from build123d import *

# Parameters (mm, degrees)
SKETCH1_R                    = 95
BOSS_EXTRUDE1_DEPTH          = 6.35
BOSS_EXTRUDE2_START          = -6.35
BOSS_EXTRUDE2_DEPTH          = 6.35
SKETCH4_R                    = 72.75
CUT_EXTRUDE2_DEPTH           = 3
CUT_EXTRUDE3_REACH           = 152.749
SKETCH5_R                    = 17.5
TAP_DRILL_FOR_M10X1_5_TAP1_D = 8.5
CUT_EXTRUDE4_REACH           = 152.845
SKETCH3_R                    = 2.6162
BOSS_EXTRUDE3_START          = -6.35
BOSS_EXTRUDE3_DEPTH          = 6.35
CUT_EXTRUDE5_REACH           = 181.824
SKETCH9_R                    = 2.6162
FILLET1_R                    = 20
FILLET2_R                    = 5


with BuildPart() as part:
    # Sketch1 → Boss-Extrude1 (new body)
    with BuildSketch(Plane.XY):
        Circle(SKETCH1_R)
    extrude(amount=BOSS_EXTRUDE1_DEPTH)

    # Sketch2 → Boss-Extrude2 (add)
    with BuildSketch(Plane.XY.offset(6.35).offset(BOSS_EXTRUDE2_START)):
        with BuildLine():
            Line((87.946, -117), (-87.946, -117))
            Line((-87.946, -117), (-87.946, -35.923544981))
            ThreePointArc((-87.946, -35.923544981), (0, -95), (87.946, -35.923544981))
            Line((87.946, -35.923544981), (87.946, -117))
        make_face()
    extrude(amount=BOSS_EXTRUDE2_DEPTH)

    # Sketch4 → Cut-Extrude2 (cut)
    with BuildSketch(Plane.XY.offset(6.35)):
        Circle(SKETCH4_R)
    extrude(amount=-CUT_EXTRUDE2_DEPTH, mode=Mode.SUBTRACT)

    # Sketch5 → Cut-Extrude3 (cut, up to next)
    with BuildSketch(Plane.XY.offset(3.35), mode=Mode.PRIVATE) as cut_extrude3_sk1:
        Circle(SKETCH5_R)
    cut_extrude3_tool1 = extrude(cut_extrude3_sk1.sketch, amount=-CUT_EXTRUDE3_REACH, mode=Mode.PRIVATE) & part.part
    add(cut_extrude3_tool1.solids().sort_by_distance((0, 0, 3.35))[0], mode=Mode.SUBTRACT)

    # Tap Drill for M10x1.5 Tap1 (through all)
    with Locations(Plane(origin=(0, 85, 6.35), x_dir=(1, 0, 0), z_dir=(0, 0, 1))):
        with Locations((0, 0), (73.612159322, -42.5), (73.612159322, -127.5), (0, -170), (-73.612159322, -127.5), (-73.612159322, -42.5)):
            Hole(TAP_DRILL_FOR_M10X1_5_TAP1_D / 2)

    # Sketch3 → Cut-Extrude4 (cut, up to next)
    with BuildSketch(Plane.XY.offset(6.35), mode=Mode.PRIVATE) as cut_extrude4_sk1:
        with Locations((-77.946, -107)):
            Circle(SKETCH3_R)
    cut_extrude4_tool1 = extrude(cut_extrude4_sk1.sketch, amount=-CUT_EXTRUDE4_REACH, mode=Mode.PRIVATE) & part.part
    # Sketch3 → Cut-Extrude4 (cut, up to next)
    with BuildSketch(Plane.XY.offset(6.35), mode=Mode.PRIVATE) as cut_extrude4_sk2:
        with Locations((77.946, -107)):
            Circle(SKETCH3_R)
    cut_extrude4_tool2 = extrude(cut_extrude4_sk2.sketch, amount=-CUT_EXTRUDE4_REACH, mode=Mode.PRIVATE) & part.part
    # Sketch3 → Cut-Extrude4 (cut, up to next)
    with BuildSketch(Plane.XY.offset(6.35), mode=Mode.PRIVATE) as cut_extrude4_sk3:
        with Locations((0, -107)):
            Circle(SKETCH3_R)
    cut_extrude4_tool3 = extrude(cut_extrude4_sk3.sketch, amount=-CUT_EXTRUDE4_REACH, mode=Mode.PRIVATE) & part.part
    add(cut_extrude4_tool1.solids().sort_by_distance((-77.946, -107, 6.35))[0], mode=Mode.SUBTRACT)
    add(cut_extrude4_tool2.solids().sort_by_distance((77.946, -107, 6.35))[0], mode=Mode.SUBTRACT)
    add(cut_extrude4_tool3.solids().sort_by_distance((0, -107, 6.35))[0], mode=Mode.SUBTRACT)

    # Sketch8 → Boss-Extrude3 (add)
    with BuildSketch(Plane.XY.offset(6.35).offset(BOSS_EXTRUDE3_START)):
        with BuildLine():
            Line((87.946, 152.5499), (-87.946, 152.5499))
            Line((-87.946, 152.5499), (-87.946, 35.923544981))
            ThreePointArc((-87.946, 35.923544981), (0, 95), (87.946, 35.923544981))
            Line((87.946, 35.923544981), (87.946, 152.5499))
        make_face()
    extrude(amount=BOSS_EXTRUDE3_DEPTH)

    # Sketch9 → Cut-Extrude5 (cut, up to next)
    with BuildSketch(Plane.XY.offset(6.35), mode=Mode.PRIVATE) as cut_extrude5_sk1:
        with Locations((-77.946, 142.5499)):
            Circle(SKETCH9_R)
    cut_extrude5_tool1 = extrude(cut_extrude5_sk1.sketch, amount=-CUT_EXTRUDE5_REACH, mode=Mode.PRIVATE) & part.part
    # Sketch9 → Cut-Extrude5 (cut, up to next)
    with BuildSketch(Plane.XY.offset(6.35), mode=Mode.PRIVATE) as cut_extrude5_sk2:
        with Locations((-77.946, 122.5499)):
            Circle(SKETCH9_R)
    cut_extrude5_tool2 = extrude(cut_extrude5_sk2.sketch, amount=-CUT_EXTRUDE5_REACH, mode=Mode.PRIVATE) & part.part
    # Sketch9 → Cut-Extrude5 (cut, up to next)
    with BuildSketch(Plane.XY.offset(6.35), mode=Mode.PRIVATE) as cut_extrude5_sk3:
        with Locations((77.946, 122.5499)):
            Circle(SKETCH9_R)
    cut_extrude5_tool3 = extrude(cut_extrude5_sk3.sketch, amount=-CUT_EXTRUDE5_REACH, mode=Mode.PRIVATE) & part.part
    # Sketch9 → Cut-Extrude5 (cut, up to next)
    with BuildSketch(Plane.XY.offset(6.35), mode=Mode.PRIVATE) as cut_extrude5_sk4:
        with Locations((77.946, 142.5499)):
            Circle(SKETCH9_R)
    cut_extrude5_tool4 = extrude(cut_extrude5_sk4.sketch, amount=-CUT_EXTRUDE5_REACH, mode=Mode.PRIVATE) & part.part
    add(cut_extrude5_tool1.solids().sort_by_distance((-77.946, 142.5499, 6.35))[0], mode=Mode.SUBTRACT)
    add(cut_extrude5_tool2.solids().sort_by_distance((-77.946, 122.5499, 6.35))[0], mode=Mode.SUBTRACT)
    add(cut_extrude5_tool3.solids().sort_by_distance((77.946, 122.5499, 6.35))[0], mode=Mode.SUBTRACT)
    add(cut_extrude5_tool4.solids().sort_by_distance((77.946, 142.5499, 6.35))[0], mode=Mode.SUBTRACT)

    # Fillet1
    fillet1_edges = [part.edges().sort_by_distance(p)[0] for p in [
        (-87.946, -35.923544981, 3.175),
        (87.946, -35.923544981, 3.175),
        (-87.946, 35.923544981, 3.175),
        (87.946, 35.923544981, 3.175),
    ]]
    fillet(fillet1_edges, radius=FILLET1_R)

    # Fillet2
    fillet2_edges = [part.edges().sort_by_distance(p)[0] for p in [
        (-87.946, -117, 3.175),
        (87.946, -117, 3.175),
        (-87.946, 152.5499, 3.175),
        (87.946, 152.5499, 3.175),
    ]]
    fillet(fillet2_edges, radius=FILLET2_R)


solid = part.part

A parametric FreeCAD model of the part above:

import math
import FreeCAD as App
import Part
import Sketcher
from FreeCAD import Vector


def edges_at(feature, points):
    """Names of the edges that pass closest to the given points."""
    edges = feature.Shape.Edges
    near = lambda p: min(range(len(edges)), key=lambda i: edges[i].distToShape(Part.Vertex(*p))[0])
    return sorted({f"Edge{near(p) + 1}" for p in points})

doc = App.newDocument("Part")
body = doc.addObject("PartDesign::Body", "Body")

# Sketch on XY plane
sketch1 = body.newObject("Sketcher::SketchObject", "Sketch")
sketch1.AttachmentSupport = (doc.getObject("XY_Plane"), [""])
sketch1.MapMode = "FlatFace"
sketch1.addGeometry(Part.Circle(Vector(0, 0, 0), Vector(0, 0, 1), 95), False)
sketch1.addConstraint(Sketcher.Constraint("Coincident", 0, 3, -1, 1))
sketch1.addConstraint(Sketcher.Constraint("Diameter", 0, 190.0))
pad1 = body.newObject("PartDesign::Pad", "Pad")
pad1.Profile = sketch1
pad1.Length = 6.35

# Sketch on XY plane
sketch2 = body.newObject("Sketcher::SketchObject", "Sketch001")
sketch2.AttachmentSupport = (doc.getObject("XY_Plane"), [""])
sketch2.MapMode = "FlatFace"
sketch2.addGeometry(Part.LineSegment(Vector(-87.946, -117, 0), Vector(87.946, -117, 0)), False)
sketch2.addGeometry(Part.LineSegment(Vector(87.946, -117, 0), Vector(87.946, -35.923545, 0)), False)
sketch2.addGeometry(Part.ArcOfCircle(Part.Circle(Vector(0, 0, 0), Vector(0, 0, 1), 95), math.radians(-157.781323), math.radians(-22.218677)), False)
sketch2.addGeometry(Part.LineSegment(Vector(-87.946, -35.923545, 0), Vector(-87.946, -117, 0)), False)
sketch2.addConstraint(Sketcher.Constraint("Coincident", 0, 2, 1, 1))
sketch2.addConstraint(Sketcher.Constraint("Coincident", 1, 2, 2, 2))
sketch2.addConstraint(Sketcher.Constraint("Coincident", 2, 1, 3, 1))
sketch2.addConstraint(Sketcher.Constraint("Coincident", 3, 2, 0, 1))
sketch2.addConstraint(Sketcher.Constraint("Horizontal", 0))
sketch2.addConstraint(Sketcher.Constraint("Vertical", 1))
sketch2.addConstraint(Sketcher.Constraint("Vertical", 3))
sketch2.addConstraint(Sketcher.Constraint("Coincident", 2, 3, -1, 1))
sketch2.addConstraint(Sketcher.Constraint("Horizontal", 1, 2, 2, 1))
sketch2.addConstraint(Sketcher.Constraint("Radius", 2, 95.0))
sketch2.addConstraint(Sketcher.Constraint("DistanceY", 0, 2, -1, 1, 117.0))
sketch2.addConstraint(Sketcher.Constraint("DistanceX", 0, 1, 0, 2, 175.892))
pad2 = body.newObject("PartDesign::Pad", "Pad001")
pad2.Profile = sketch2
pad2.Length = 6.35

# Sketch on XY plane
sketch3 = body.newObject("Sketcher::SketchObject", "Sketch002")
sketch3.AttachmentSupport = (doc.getObject("XY_Plane"), [""])
sketch3.MapMode = "FlatFace"
sketch3.AttachmentOffset = App.Placement(Vector(0, 0, 6.35), App.Rotation())
sketch3.addGeometry(Part.Circle(Vector(0, 0, 0), Vector(0, 0, 1), 72.75), False)
sketch3.addConstraint(Sketcher.Constraint("Coincident", 0, 3, -1, 1))
sketch3.addConstraint(Sketcher.Constraint("Diameter", 0, 145.5))
pocket1 = body.newObject("PartDesign::Pocket", "Pocket")
pocket1.Profile = sketch3
pocket1.Length = 3

# Sketch on XY plane
sketch4 = body.newObject("Sketcher::SketchObject", "Sketch003")
sketch4.AttachmentSupport = (doc.getObject("XY_Plane"), [""])
sketch4.MapMode = "FlatFace"
sketch4.AttachmentOffset = App.Placement(Vector(0, 0, 3.35), App.Rotation())
sketch4.addGeometry(Part.Circle(Vector(0, 0, 0), Vector(0, 0, 1), 17.5), False)
sketch4.addConstraint(Sketcher.Constraint("Coincident", 0, 3, -1, 1))
sketch4.addConstraint(Sketcher.Constraint("Diameter", 0, 35.0))
pocket2 = body.newObject("PartDesign::Pocket", "Pocket001")
pocket2.Profile = sketch4
pocket2.Type = "UpToFirst"

# Sketch on XY plane
sketch5 = body.newObject("Sketcher::SketchObject", "Sketch004")
sketch5.AttachmentSupport = (doc.getObject("XY_Plane"), [""])
sketch5.MapMode = "FlatFace"
sketch5.AttachmentOffset = App.Placement(Vector(0, 0, 6.35), App.Rotation())
sketch5.addGeometry(Part.Circle(Vector(0, 85, 0), Vector(0, 0, 1), 4.25), False)
sketch5.addGeometry(Part.Circle(Vector(73.612159, 42.5, 0), Vector(0, 0, 1), 4.25), False)
sketch5.addGeometry(Part.Circle(Vector(73.612159, -42.5, 0), Vector(0, 0, 1), 4.25), False)
sketch5.addGeometry(Part.Circle(Vector(0, -85, 0), Vector(0, 0, 1), 4.25), False)
sketch5.addGeometry(Part.Circle(Vector(-73.612159, -42.5, 0), Vector(0, 0, 1), 4.25), False)
sketch5.addGeometry(Part.Circle(Vector(-73.612159, 42.5, 0), Vector(0, 0, 1), 4.25), False)
sketch5.addConstraint(Sketcher.Constraint("Equal", 0, 1))
sketch5.addConstraint(Sketcher.Constraint("Equal", 1, 2))
sketch5.addConstraint(Sketcher.Constraint("Equal", 2, 3))
sketch5.addConstraint(Sketcher.Constraint("Equal", 3, 4))
sketch5.addConstraint(Sketcher.Constraint("Equal", 4, 5))
sketch5.addConstraint(Sketcher.Constraint("Symmetric", 0, 3, 3, 3, -1, 1))
sketch5.addConstraint(Sketcher.Constraint("Symmetric", 1, 3, 4, 3, -1, 1))
sketch5.addConstraint(Sketcher.Constraint("Symmetric", 2, 3, 5, 3, -1, 1))
sketch5.addConstraint(Sketcher.Constraint("Symmetric", 2, 3, 4, 3, -2))
sketch5.addConstraint(Sketcher.Constraint("PointOnObject", 0, 3, -2))
sketch5.addConstraint(Sketcher.Constraint("Diameter", 0, 8.5))
sketch5.addConstraint(Sketcher.Constraint("DistanceY", -1, 1, 0, 3, 85.0))
sketch5.addConstraint(Sketcher.Constraint("DistanceY", 2, 3, 1, 3, 85.0))
sketch5.addConstraint(Sketcher.Constraint("DistanceX", -1, 1, 1, 3, 73.612159))
doc.recompute()
hole = body.newObject("PartDesign::Hole", "Hole")
hole.Profile = sketch5
hole.ThreadType = "None"
hole.Diameter = 8.5
hole.DepthType = "ThroughAll"

# Sketch on XY plane
sketch6 = body.newObject("Sketcher::SketchObject", "Sketch005")
sketch6.AttachmentSupport = (doc.getObject("XY_Plane"), [""])
sketch6.MapMode = "FlatFace"
sketch6.AttachmentOffset = App.Placement(Vector(0, 0, 6.35), App.Rotation())
sketch6.addGeometry(Part.Circle(Vector(-77.946, -107, 0), Vector(0, 0, 1), 2.6162), False)
sketch6.addConstraint(Sketcher.Constraint("DistanceY", 0, 3, -1, 1, 107.0))
sketch6.addConstraint(Sketcher.Constraint("Diameter", 0, 5.2324))
sketch6.addConstraint(Sketcher.Constraint("DistanceX", 0, 3, -1, 1, 77.946))
pocket3 = body.newObject("PartDesign::Pocket", "Pocket002")
pocket3.Profile = sketch6
pocket3.Type = "UpToFirst"

# Sketch on XY plane
sketch7 = body.newObject("Sketcher::SketchObject", "Sketch006")
sketch7.AttachmentSupport = (doc.getObject("XY_Plane"), [""])
sketch7.MapMode = "FlatFace"
sketch7.AttachmentOffset = App.Placement(Vector(0, 0, 6.35), App.Rotation())
sketch7.addGeometry(Part.Circle(Vector(77.946, -107, 0), Vector(0, 0, 1), 2.6162), False)
sketch7.addConstraint(Sketcher.Constraint("DistanceY", 0, 3, -1, 1, 107.0))
sketch7.addConstraint(Sketcher.Constraint("Diameter", 0, 5.2324))
sketch7.addConstraint(Sketcher.Constraint("DistanceX", -1, 1, 0, 3, 77.946))
pocket4 = body.newObject("PartDesign::Pocket", "Pocket003")
pocket4.Profile = sketch7
pocket4.Type = "UpToFirst"

# Sketch on XY plane
sketch8 = body.newObject("Sketcher::SketchObject", "Sketch007")
sketch8.AttachmentSupport = (doc.getObject("XY_Plane"), [""])
sketch8.MapMode = "FlatFace"
sketch8.AttachmentOffset = App.Placement(Vector(0, 0, 6.35), App.Rotation())
sketch8.addGeometry(Part.Circle(Vector(0, -107, 0), Vector(0, 0, 1), 2.6162), False)
sketch8.addConstraint(Sketcher.Constraint("PointOnObject", 0, 3, -2))
sketch8.addConstraint(Sketcher.Constraint("DistanceY", 0, 3, -1, 1, 107.0))
sketch8.addConstraint(Sketcher.Constraint("Diameter", 0, 5.2324))
pocket5 = body.newObject("PartDesign::Pocket", "Pocket004")
pocket5.Profile = sketch8
pocket5.Type = "UpToFirst"

# Sketch on XY plane
sketch9 = body.newObject("Sketcher::SketchObject", "Sketch008")
sketch9.AttachmentSupport = (doc.getObject("XY_Plane"), [""])
sketch9.MapMode = "FlatFace"
sketch9.addGeometry(Part.LineSegment(Vector(87.946, 152.5499, 0), Vector(-87.946, 152.5499, 0)), False)
sketch9.addGeometry(Part.LineSegment(Vector(-87.946, 152.5499, 0), Vector(-87.946, 35.923545, 0)), False)
sketch9.addGeometry(Part.ArcOfCircle(Part.Circle(Vector(0, 0, 0), Vector(0, 0, 1), 95), math.radians(22.218677), math.radians(157.781323)), False)
sketch9.addGeometry(Part.LineSegment(Vector(87.946, 35.923545, 0), Vector(87.946, 152.5499, 0)), False)
sketch9.addConstraint(Sketcher.Constraint("Coincident", 0, 2, 1, 1))
sketch9.addConstraint(Sketcher.Constraint("Coincident", 1, 2, 2, 2))
sketch9.addConstraint(Sketcher.Constraint("Coincident", 2, 1, 3, 1))
sketch9.addConstraint(Sketcher.Constraint("Coincident", 3, 2, 0, 1))
sketch9.addConstraint(Sketcher.Constraint("Horizontal", 0))
sketch9.addConstraint(Sketcher.Constraint("Vertical", 1))
sketch9.addConstraint(Sketcher.Constraint("Vertical", 3))
sketch9.addConstraint(Sketcher.Constraint("Coincident", 2, 3, -1, 1))
sketch9.addConstraint(Sketcher.Constraint("Horizontal", 1, 2, 2, 1))
sketch9.addConstraint(Sketcher.Constraint("Radius", 2, 95.0))
sketch9.addConstraint(Sketcher.Constraint("DistanceX", 0, 2, 0, 1, 175.892))
sketch9.addConstraint(Sketcher.Constraint("DistanceY", -1, 1, 0, 2, 152.5499))
pad3 = body.newObject("PartDesign::Pad", "Pad002")
pad3.Profile = sketch9
pad3.Length = 6.35

# Sketch on XY plane
sketch10 = body.newObject("Sketcher::SketchObject", "Sketch009")
sketch10.AttachmentSupport = (doc.getObject("XY_Plane"), [""])
sketch10.MapMode = "FlatFace"
sketch10.AttachmentOffset = App.Placement(Vector(0, 0, 6.35), App.Rotation())
sketch10.addGeometry(Part.Circle(Vector(-77.946, 142.5499, 0), Vector(0, 0, 1), 2.6162), False)
sketch10.addConstraint(Sketcher.Constraint("Diameter", 0, 5.2324))
sketch10.addConstraint(Sketcher.Constraint("DistanceX", 0, 3, -1, 1, 77.946))
sketch10.addConstraint(Sketcher.Constraint("DistanceY", -1, 1, 0, 3, 142.5499))
pocket6 = body.newObject("PartDesign::Pocket", "Pocket005")
pocket6.Profile = sketch10
pocket6.Type = "UpToFirst"

# Sketch on XY plane
sketch11 = body.newObject("Sketcher::SketchObject", "Sketch010")
sketch11.AttachmentSupport = (doc.getObject("XY_Plane"), [""])
sketch11.MapMode = "FlatFace"
sketch11.AttachmentOffset = App.Placement(Vector(0, 0, 6.35), App.Rotation())
sketch11.addGeometry(Part.Circle(Vector(-77.946, 122.5499, 0), Vector(0, 0, 1), 2.6162), False)
sketch11.addConstraint(Sketcher.Constraint("Diameter", 0, 5.2324))
sketch11.addConstraint(Sketcher.Constraint("DistanceX", 0, 3, -1, 1, 77.946))
sketch11.addConstraint(Sketcher.Constraint("DistanceY", -1, 1, 0, 3, 122.5499))
pocket7 = body.newObject("PartDesign::Pocket", "Pocket006")
pocket7.Profile = sketch11
pocket7.Type = "UpToFirst"

# Sketch on XY plane
sketch12 = body.newObject("Sketcher::SketchObject", "Sketch011")
sketch12.AttachmentSupport = (doc.getObject("XY_Plane"), [""])
sketch12.MapMode = "FlatFace"
sketch12.AttachmentOffset = App.Placement(Vector(0, 0, 6.35), App.Rotation())
sketch12.addGeometry(Part.Circle(Vector(77.946, 122.5499, 0), Vector(0, 0, 1), 2.6162), False)
sketch12.addConstraint(Sketcher.Constraint("Diameter", 0, 5.2324))
sketch12.addConstraint(Sketcher.Constraint("DistanceX", -1, 1, 0, 3, 77.946))
sketch12.addConstraint(Sketcher.Constraint("DistanceY", -1, 1, 0, 3, 122.5499))
pocket8 = body.newObject("PartDesign::Pocket", "Pocket007")
pocket8.Profile = sketch12
pocket8.Type = "UpToFirst"

# Sketch on XY plane
sketch13 = body.newObject("Sketcher::SketchObject", "Sketch012")
sketch13.AttachmentSupport = (doc.getObject("XY_Plane"), [""])
sketch13.MapMode = "FlatFace"
sketch13.AttachmentOffset = App.Placement(Vector(0, 0, 6.35), App.Rotation())
sketch13.addGeometry(Part.Circle(Vector(77.946, 142.5499, 0), Vector(0, 0, 1), 2.6162), False)
sketch13.addConstraint(Sketcher.Constraint("Diameter", 0, 5.2324))
sketch13.addConstraint(Sketcher.Constraint("DistanceX", -1, 1, 0, 3, 77.946))
sketch13.addConstraint(Sketcher.Constraint("DistanceY", -1, 1, 0, 3, 142.5499))
pocket9 = body.newObject("PartDesign::Pocket", "Pocket008")
pocket9.Profile = sketch13
pocket9.Type = "UpToFirst"
doc.recompute()

fillet = body.newObject("PartDesign::Fillet", "Fillet")
fillet.Base = (pocket9, edges_at(pocket9, [
    (-87.946, -35.924, 3.175),
    (87.946, -35.924, 3.175),
    (-87.946, 35.924, 3.175),
    (87.946, 35.924, 3.175),
]))
fillet.Radius = 20
doc.recompute()

fillet2 = body.newObject("PartDesign::Fillet", "Fillet001")
fillet2.Base = (fillet, edges_at(fillet, [
    (-87.946, -117, 3.175),
    (87.946, -117, 3.175),
    (-87.946, 152.55, 3.175),
    (87.946, 152.55, 3.175),
]))
fillet2.Radius = 5

doc.recompute()
